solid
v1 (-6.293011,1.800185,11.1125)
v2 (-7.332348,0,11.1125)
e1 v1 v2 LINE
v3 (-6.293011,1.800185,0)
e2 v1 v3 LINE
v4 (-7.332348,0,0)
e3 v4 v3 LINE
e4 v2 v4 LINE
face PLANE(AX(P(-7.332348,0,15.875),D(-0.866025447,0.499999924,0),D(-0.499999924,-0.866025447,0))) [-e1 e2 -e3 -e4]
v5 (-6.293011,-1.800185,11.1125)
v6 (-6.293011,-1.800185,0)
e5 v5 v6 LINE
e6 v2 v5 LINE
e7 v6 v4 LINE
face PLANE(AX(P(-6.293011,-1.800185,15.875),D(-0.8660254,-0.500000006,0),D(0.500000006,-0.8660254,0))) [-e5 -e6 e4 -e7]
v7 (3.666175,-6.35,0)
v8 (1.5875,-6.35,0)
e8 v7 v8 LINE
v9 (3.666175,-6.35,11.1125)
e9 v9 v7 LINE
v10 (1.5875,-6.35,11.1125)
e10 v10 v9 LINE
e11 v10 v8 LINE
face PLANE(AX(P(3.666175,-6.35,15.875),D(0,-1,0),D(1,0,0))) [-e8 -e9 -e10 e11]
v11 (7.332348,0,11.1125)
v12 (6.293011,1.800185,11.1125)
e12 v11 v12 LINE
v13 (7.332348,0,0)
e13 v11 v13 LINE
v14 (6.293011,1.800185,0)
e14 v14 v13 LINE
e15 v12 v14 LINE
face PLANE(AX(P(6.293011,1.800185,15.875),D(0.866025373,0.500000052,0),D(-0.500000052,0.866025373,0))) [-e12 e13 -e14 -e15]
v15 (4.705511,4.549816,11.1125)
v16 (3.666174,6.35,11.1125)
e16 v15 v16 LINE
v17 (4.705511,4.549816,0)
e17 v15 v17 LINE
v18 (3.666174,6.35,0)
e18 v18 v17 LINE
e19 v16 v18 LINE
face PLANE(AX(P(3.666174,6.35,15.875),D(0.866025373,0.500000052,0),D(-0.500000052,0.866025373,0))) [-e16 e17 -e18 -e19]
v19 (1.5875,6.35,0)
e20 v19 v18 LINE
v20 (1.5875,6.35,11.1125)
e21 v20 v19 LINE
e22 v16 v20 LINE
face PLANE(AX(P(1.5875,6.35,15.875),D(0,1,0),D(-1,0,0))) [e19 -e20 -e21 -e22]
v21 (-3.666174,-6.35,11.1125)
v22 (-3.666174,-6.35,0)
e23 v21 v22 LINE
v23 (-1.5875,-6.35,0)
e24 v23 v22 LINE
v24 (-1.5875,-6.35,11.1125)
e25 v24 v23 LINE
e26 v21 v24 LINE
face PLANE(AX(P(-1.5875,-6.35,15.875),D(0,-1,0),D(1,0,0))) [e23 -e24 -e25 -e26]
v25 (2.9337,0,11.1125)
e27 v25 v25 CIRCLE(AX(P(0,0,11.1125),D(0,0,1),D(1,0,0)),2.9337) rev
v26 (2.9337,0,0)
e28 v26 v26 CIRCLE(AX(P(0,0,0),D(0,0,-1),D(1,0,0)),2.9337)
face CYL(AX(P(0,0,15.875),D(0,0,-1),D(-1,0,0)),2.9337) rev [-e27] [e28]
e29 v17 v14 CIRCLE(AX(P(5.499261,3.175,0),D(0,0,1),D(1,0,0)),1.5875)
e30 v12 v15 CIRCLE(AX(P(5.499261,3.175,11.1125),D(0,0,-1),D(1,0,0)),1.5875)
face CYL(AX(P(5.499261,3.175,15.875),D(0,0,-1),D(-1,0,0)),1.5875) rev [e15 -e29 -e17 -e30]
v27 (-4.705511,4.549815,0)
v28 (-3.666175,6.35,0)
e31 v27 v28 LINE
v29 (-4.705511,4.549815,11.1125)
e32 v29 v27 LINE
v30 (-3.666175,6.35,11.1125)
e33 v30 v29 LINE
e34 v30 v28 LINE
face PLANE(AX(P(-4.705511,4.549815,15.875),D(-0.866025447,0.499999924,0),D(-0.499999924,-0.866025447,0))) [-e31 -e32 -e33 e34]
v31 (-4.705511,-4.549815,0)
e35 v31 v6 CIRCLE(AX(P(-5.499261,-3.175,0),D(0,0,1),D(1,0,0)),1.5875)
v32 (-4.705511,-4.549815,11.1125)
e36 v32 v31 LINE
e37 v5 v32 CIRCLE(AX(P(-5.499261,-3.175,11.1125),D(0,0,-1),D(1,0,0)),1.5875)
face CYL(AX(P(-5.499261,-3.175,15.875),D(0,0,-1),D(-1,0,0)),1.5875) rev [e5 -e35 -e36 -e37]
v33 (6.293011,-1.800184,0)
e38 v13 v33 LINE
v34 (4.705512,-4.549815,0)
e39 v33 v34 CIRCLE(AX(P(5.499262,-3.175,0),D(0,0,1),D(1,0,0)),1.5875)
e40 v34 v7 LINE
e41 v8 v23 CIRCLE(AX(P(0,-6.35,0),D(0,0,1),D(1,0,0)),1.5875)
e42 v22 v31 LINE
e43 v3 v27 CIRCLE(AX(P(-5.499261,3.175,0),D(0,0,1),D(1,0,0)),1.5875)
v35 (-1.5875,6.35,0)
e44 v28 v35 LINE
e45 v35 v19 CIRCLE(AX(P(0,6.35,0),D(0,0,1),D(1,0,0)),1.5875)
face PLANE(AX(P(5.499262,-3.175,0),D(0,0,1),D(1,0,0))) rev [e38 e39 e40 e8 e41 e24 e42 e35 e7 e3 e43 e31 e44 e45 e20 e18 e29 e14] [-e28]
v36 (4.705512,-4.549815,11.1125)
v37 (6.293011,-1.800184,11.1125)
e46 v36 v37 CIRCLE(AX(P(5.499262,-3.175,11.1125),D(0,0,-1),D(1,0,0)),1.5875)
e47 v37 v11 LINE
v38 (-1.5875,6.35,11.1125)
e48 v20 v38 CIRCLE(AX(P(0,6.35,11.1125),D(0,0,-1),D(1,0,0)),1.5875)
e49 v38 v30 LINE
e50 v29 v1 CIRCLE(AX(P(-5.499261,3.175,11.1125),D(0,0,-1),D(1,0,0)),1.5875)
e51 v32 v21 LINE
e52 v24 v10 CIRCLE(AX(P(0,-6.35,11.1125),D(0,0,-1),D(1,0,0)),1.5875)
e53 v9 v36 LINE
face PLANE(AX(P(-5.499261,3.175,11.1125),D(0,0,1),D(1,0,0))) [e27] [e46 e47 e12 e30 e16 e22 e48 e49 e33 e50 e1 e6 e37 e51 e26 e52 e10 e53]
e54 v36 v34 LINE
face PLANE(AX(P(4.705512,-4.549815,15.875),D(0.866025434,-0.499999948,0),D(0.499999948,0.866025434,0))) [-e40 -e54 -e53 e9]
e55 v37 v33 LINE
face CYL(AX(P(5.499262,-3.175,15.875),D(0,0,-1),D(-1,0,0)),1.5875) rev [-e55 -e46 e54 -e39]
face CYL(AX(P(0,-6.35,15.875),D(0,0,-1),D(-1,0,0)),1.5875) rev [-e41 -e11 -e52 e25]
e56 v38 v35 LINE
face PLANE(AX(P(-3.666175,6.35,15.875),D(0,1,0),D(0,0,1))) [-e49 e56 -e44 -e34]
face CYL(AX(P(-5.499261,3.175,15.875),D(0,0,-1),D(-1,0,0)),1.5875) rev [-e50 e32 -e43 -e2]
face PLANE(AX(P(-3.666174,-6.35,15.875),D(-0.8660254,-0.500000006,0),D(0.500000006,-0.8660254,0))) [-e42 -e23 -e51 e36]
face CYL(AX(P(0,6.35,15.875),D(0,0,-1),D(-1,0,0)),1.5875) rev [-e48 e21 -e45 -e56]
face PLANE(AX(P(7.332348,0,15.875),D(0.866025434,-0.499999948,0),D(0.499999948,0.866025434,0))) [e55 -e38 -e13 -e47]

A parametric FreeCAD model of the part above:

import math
import FreeCAD as App
import Part
import Sketcher
from FreeCAD import Vector
Q = App.Units.Quantity

doc = App.newDocument("Part")
params = doc.addObject("Spreadsheet::Sheet", "Params")
for row, (alias, value) in enumerate([
    ("sketch1_diameter", "0.231 in"),
    ("sketch1_radius", "0.0625 in"),
    ("pad1_length", "0.625 in"),
    ("sketch2_radius", "0.0625 in"),
    ("pocket1_length", "0.1875 in"),
], start=1):
    params.set(f"A{row}", alias)
    params.set(f"B{row}", "=" + value)
    params.setAlias(f"B{row}", alias)

body = doc.addObject("PartDesign::Body", "Body")

sketch1 = doc.addObject("Sketcher::SketchObject", "Sketch")
body.addObject(sketch1)
sketch1.AttachmentSupport = (doc.XY_Plane, [""])
sketch1.MapMode = "FlatFace"
sketch1.addGeometry(Part.LineSegment(Vector(4.705512, -4.549815, 0), Vector(3.666175, -6.35, 0)), False)
sketch1.addGeometry(Part.LineSegment(Vector(3.666175, -6.35, 0), Vector(1.5875, -6.35, 0)), False)
sketch1.addGeometry(Part.ArcOfCircle(Part.Circle(Vector(0, -6.35, 0), Vector(0, 0, 1), 1.5875), math.radians(0), math.radians(180)), False)
sketch1.addGeometry(Part.LineSegment(Vector(-1.5875, -6.35, 0), Vector(-3.666174, -6.35, 0)), False)
sketch1.addGeometry(Part.LineSegment(Vector(-3.666174, -6.35, 0), Vector(-4.705511, -4.549815, 0)), False)
sketch1.addGeometry(Part.ArcOfCircle(Part.Circle(Vector(-5.499261, -3.175, 0), Vector(0, 0, 1), 1.5875), math.radians(-60), math.radians(120)), False)
sketch1.addGeometry(Part.LineSegment(Vector(-6.293011, -1.800185, 0), Vector(-7.332348, 0, 0)), False)
sketch1.addGeometry(Part.LineSegment(Vector(-7.332348, 0, 0), Vector(-6.293011, 1.800185, 0)), False)
sketch1.addGeometry(Part.ArcOfCircle(Part.Circle(Vector(-5.499261, 3.175, 0), Vector(0, 0, 1), 1.5875), math.radians(-119.999995), math.radians(60.000005)), False)
sketch1.addGeometry(Part.LineSegment(Vector(-4.705511, 4.549815, 0), Vector(-3.666175, 6.35, 0)), False)
sketch1.addGeometry(Part.LineSegment(Vector(-3.666175, 6.35, 0), Vector(-1.5875, 6.35, 0)), False)
sketch1.addGeometry(Part.ArcOfCircle(Part.Circle(Vector(0, 6.35, 0), Vector(0, 0, 1), 1.5875), math.radians(180), math.radians(360)), False)
sketch1.addGeometry(Part.LineSegment(Vector(1.5875, 6.35, 0), Vector(3.666174, 6.35, 0)), False)
sketch1.addGeometry(Part.LineSegment(Vector(3.666174, 6.35, 0), Vector(4.705511, 4.549816, 0)), False)
sketch1.addGeometry(Part.ArcOfCircle(Part.Circle(Vector(5.499261, 3.175, 0), Vector(0, 0, 1), 1.5875), math.radians(120.000003), math.radians(300.000003)), False)
sketch1.addGeometry(Part.LineSegment(Vector(6.293011, 1.800185, 0), Vector(7.332348, 0, 0)), False)
sketch1.addGeometry(Part.LineSegment(Vector(7.332348, 0, 0), Vector(6.293011, -1.800184, 0)), False)
sketch1.addGeometry(Part.ArcOfCircle(Part.Circle(Vector(5.499262, -3.175, 0), Vector(0, 0, 1), 1.5875), math.radians(60.000003), math.radians(240.000004)), False)
sketch1.addGeometry(Part.Circle(Vector(0, 0, 0), Vector(0, 0, 1), 2.9337), False)
sketch1.addConstraint(Sketcher.Constraint("Coincident", 0, 2, 1, 1))
sketch1.addConstraint(Sketcher.Constraint("Coincident", 1, 2, 2, 1))
sketch1.addConstraint(Sketcher.Constraint("Coincident", 2, 2, 3, 1))
sketch1.addConstraint(Sketcher.Constraint("Coincident", 3, 2, 4, 1))
sketch1.addConstraint(Sketcher.Constraint("Coincident", 4, 2, 5, 1))
sketch1.addConstraint(Sketcher.Constraint("Coincident", 5, 2, 6, 1))
sketch1.addConstraint(Sketcher.Constraint("Coincident", 6, 2, 7, 1))
sketch1.addConstraint(Sketcher.Constraint("Coincident", 7, 2, 8, 1))
sketch1.addConstraint(Sketcher.Constraint("Coincident", 8, 2, 9, 1))
sketch1.addConstraint(Sketcher.Constraint("Coincident", 9, 2, 10, 1))
sketch1.addConstraint(Sketcher.Constraint("Coincident", 10, 2, 11, 1))
sketch1.addConstraint(Sketcher.Constraint("Coincident", 11, 2, 12, 1))
sketch1.addConstraint(Sketcher.Constraint("Coincident", 12, 2, 13, 1))
sketch1.addConstraint(Sketcher.Constraint("Coincident", 13, 2, 14, 1))
sketch1.addConstraint(Sketcher.Constraint("Coincident", 14, 2, 15, 1))
sketch1.addConstraint(Sketcher.Constraint("Coincident", 15, 2, 16, 1))
sketch1.addConstraint(Sketcher.Constraint("Coincident", 16, 2, 17, 1))
sketch1.addConstraint(Sketcher.Constraint("Coincident", 17, 2, 0, 1))
sketch1.addConstraint(Sketcher.Constraint("Horizontal", 1))
sketch1.addConstraint(Sketcher.Constraint("Horizontal", 3))
sketch1.addConstraint(Sketcher.Constraint("Horizontal", 10))
sketch1.addConstraint(Sketcher.Constraint("Horizontal", 12))
sketch1.addConstraint(Sketcher.Constraint("Coincident", 18, 3, -1, 1))
sketch1.addConstraint(Sketcher.Constraint("Equal", 2, 5))
sketch1.addConstraint(Sketcher.Constraint("Equal", 5, 8))
sketch1.addConstraint(Sketcher.Constraint("Equal", 8, 11))
sketch1.addConstraint(Sketcher.Constraint("Equal", 11, 14))
sketch1.addConstraint(Sketcher.Constraint("Equal", 14, 17))
sketch1.addConstraint(Sketcher.Constraint("Symmetric", 2, 3, 11, 3, -1, 1))
sketch1.addConstraint(Sketcher.Constraint("Symmetric", 5, 3, 14, 3, -1, 1))
sketch1.addConstraint(Sketcher.Constraint("Symmetric", 8, 3, 17, 3, -1, 1))
sketch1.addConstraint(Sketcher.Constraint("Symmetric", 0, 2, 9, 2, -1, 1))
sketch1.addConstraint(Sketcher.Constraint("Symmetric", 3, 2, 12, 2, -1, 1))
sketch1.addConstraint(Sketcher.Constraint("Symmetric", 6, 2, 15, 2, -1, 1))
sketch1.addConstraint(Sketcher.Constraint("Symmetric", 8, 3, 14, 3, -2))
sketch1.addConstraint(Sketcher.Constraint("Symmetric", 1, 2, 2, 2, -2))
sketch1.addConstraint(Sketcher.Constraint("PointOnObject", 6, 2, -1))
sketch1.addConstraint(Sketcher.Constraint("Parallel", 4, 6))
sketch1.addConstraint(Sketcher.Constraint("Parallel", 0, 7))
sketch1.addConstraint(Sketcher.Constraint("Parallel", 7, 9))
sketch1.addConstraint(Sketcher.Constraint("Parallel", 6, 13))
sketch1.addConstraint(Sketcher.Constraint("Parallel", 13, 15))
sketch1.addConstraint(Sketcher.Constraint("Parallel", 9, 16))
sketch1.addConstraint(Sketcher.Constraint("Horizontal", 2, 3, 0, 2))
sketch1.addConstraint(Sketcher.Constraint("Horizontal", 8, 2, 13, 2))
sketch1.addConstraint(Sketcher.Constraint("Horizontal", 7, 2, 14, 2))
sketch1.addConstraint(Sketcher.Constraint("Equal", 4, 6))
sketch1.addConstraint(Sketcher.Constraint("Diameter", 18, Q("0.231 in")))
sketch1.addConstraint(Sketcher.Constraint("Angle", 0, Q("-119.999997 deg")))
sketch1.addConstraint(Sketcher.Constraint("Radius", 2, Q("0.0625 in")))
sketch1.addConstraint(Sketcher.Constraint("DistanceY", 2, 3, 11, 3, Q("0.5 in")))
sketch1.addConstraint(Sketcher.Constraint("DistanceY", 5, 3, 8, 3, Q("0.25 in")))
sketch1.addConstraint(Sketcher.Constraint("DistanceX", 5, 3, 4, 2, Q("0.03125 in")))
sketch1.addConstraint(Sketcher.Constraint("DistanceX", 1, 2, 1, 1, Q("2.078674 mm")))
sketch1.setExpression("Constraints[47]", "Params.sketch1_diameter")
sketch1.setExpression("Constraints[49]", "Params.sketch1_radius")
pad1 = doc.addObject("PartDesign::Pad", "Pad")
body.addObject(pad1)
pad1.Profile = sketch1
pad1.setExpression("Length", "Params.pad1_length")

sketch2 = doc.addObject("Sketcher::SketchObject", "Sketch001")
body.addObject(sketch2)
sketch2.AttachmentSupport = (doc.XY_Plane, [""])
sketch2.MapMode = "FlatFace"
sketch2.AttachmentOffset = App.Placement(Vector(0, 0, 0.625 * 25.4), App.Rotation())
sketch2.addGeometry(Part.LineSegment(Vector(-3.666175, 6.35, 0), Vector(-4.705511, 4.549815, 0)), False)
sketch2.addGeometry(Part.ArcOfCircle(Part.Circle(Vector(-5.499261, 3.175, 0), Vector(0, 0, 1), 1.5875), math.radians(-119.999995), math.radians(60.000005)), False)
sketch2.addGeometry(Part.LineSegment(Vector(-6.293011, 1.800185, 0), Vector(-7.332348, 0, 0)), False)
sketch2.addGeometry(Part.LineSegment(Vector(-7.332348, 0, 0), Vector(-6.293011, -1.800185, 0)), False)
sketch2.addGeometry(Part.ArcOfCircle(Part.Circle(Vector(-5.499261, -3.175, 0), Vector(0, 0, 1), 1.5875), math.radians(-60), math.radians(120)), False)
sketch2.addGeometry(Part.LineSegment(Vector(-4.705511, -4.549815, 0), Vector(-3.666174, -6.35, 0)), False)
sketch2.addGeometry(Part.LineSegment(Vector(-3.666174, -6.35, 0), Vector(-1.5875, -6.35, 0)), False)
sketch2.addGeometry(Part.ArcOfCircle(Part.Circle(Vector(0, -6.35, 0), Vector(0, 0, 1), 1.5875), math.radians(0), math.radians(180)), False)
sketch2.addGeometry(Part.LineSegment(Vector(1.5875, -6.35, 0), Vector(3.666175, -6.35, 0)), False)
sketch2.addGeometry(Part.LineSegment(Vector(3.666175, -6.35, 0), Vector(4.705512, -4.549815, 0)), False)
sketch2.addGeometry(Part.ArcOfCircle(Part.Circle(Vector(5.499262, -3.175, 0), Vector(0, 0, 1), 1.5875), math.radians(60.000003), math.radians(240.000004)), False)
sketch2.addGeometry(Part.LineSegment(Vector(6.293011, -1.800184, 0), Vector(7.332348, 0, 0)), False)
sketch2.addGeometry(Part.LineSegment(Vector(7.332348, 0, 0), Vector(6.293011, 1.800185, 0)), False)
sketch2.addGeometry(Part.ArcOfCircle(Part.Circle(Vector(5.499261, 3.175, 0), Vector(0, 0, 1), 1.5875), math.radians(120.000003), math.radians(300.000003)), False)
sketch2.addGeometry(Part.LineSegment(Vector(4.705511, 4.549816, 0), Vector(3.666174, 6.35, 0)), False)
sketch2.addGeometry(Part.LineSegment(Vector(3.666174, 6.35, 0), Vector(1.5875, 6.35, 0)), False)
sketch2.addGeometry(Part.ArcOfCircle(Part.Circle(Vector(0, 6.35, 0), Vector(0, 0, 1), 1.5875), math.radians(180), math.radians(360)), False)
sketch2.addGeometry(Part.LineSegment(Vector(-1.5875, 6.35, 0), Vector(-3.666175, 6.35, 0)), False)
sketch2.addConstraint(Sketcher.Constraint("Coincident", 0, 2, 1, 2))
sketch2.addConstraint(Sketcher.Constraint("Coincident", 1, 1, 2, 1))
sketch2.addConstraint(Sketcher.Constraint("Coincident", 2, 2, 3, 1))
sketch2.addConstraint(Sketcher.Constraint("Coincident", 3, 2, 4, 2))
sketch2.addConstraint(Sketcher.Constraint("Coincident", 4, 1, 5, 1))
sketch2.addConstraint(Sketcher.Constraint("Coincident", 5, 2, 6, 1))
sketch2.addConstraint(Sketcher.Constraint("Coincident", 6, 2, 7, 2))
sketch2.addConstraint(Sketcher.Constraint("Coincident", 7, 1, 8, 1))
sketch2.addConstraint(Sketcher.Constraint("Coincident", 8, 2, 9, 1))
sketch2.addConstraint(Sketcher.Constraint("Coincident", 9, 2, 10, 2))
sketch2.addConstraint(Sketcher.Constraint("Coincident", 10, 1, 11, 1))
sketch2.addConstraint(Sketcher.Constraint("Coincident", 11, 2, 12, 1))
sketch2.addConstraint(Sketcher.Constraint("Coincident", 12, 2, 13, 2))
sketch2.addConstraint(Sketcher.Constraint("Coincident", 13, 1, 14, 1))
sketch2.addConstraint(Sketcher.Constraint("Coincident", 14, 2, 15, 1))
sketch2.addConstraint(Sketcher.Constraint("Coincident", 15, 2, 16, 2))
sketch2.addConstraint(Sketcher.Constraint("Coincident", 16, 1, 17, 1))
sketch2.addConstraint(Sketcher.Constraint("Coincident", 17, 2, 0, 1))
sketch2.addConstraint(Sketcher.Constraint("Horizontal", 6))
sketch2.addConstraint(Sketcher.Constraint("Horizontal", 8))
sketch2.addConstraint(Sketcher.Constraint("Horizontal", 15))
sketch2.addConstraint(Sketcher.Constraint("Horizontal", 17))
sketch2.addConstraint(Sketcher.Constraint("Equal", 1, 4))
sketch2.addConstraint(Sketcher.Constraint("Equal", 4, 7))
sketch2.addConstraint(Sketcher.Constraint("Equal", 7, 10))
sketch2.addConstraint(Sketcher.Constraint("Equal", 10, 13))
sketch2.addConstraint(Sketcher.Constraint("Equal", 13, 16))
sketch2.addConstraint(Sketcher.Constraint("Symmetric", 1, 3, 10, 3, -1, 1))
sketch2.addConstraint(Sketcher.Constraint("Symmetric", 4, 3, 13, 3, -1, 1))
sketch2.addConstraint(Sketcher.Constraint("Symmetric", 7, 3, 16, 3, -1, 1))
sketch2.addConstraint(Sketcher.Constraint("Symmetric", 2, 2, 11, 2, -1, 1))
sketch2.addConstraint(Sketcher.Constraint("Symmetric", 5, 2, 14, 2, -1, 1))
sketch2.addConstraint(Sketcher.Constraint("Symmetric", 8, 2, 17, 2, -1, 1))
sketch2.addConstraint(Sketcher.Constraint("Symmetric", 4, 3, 10, 3, -2))
sketch2.addConstraint(Sketcher.Constraint("Symmetric", 6, 2, 7, 1, -2))
sketch2.addConstraint(Sketcher.Constraint("PointOnObject", 2, 2, -1))
sketch2.addConstraint(Sketcher.Constraint("Parallel", 0, 2))
sketch2.addConstraint(Sketcher.Constraint("Parallel", 3, 5))
sketch2.addConstraint(Sketcher.Constraint("Parallel", 2, 9))
sketch2.addConstraint(Sketcher.Constraint("Parallel", 9, 11))
sketch2.addConstraint(Sketcher.Constraint("Parallel", 5, 12))
sketch2.addConstraint(Sketcher.Constraint("Parallel", 12, 14))
sketch2.addConstraint(Sketcher.Constraint("Horizontal", 7, 3, 5, 2))
sketch2.addConstraint(Sketcher.Constraint("Horizontal", 4, 1, 9, 2))
sketch2.addConstraint(Sketcher.Constraint("Horizontal", 3, 2, 10, 1))
sketch2.addConstraint(Sketcher.Constraint("Equal", 0, 2))
sketch2.addConstraint(Sketcher.Constraint("Angle", 0, Q("-119.999995 deg")))
sketch2.addConstraint(Sketcher.Constraint("Radius", 1, Q("0.0625 in")))
sketch2.addConstraint(Sketcher.Constraint("DistanceY", 7, 3, 16, 3, Q("0.5 in")))
sketch2.addConstraint(Sketcher.Constraint("DistanceY", 4, 3, 1, 3, Q("0.25 in")))
sketch2.addConstraint(Sketcher.Constraint("DistanceX", 1, 3, 0, 2, Q("0.03125 in")))
sketch2.addConstraint(Sketcher.Constraint("DistanceX", 6, 1, 6, 2, Q("2.078674 mm")))
sketch2.setExpression("Constraints[47]", "Params.sketch2_radius")
pocket1 = doc.addObject("PartDesign::Pocket", "Pocket")
body.addObject(pocket1)
pocket1.Profile = sketch2
pocket1.setExpression("Length", "Params.pocket1_length")

doc.recompute()
